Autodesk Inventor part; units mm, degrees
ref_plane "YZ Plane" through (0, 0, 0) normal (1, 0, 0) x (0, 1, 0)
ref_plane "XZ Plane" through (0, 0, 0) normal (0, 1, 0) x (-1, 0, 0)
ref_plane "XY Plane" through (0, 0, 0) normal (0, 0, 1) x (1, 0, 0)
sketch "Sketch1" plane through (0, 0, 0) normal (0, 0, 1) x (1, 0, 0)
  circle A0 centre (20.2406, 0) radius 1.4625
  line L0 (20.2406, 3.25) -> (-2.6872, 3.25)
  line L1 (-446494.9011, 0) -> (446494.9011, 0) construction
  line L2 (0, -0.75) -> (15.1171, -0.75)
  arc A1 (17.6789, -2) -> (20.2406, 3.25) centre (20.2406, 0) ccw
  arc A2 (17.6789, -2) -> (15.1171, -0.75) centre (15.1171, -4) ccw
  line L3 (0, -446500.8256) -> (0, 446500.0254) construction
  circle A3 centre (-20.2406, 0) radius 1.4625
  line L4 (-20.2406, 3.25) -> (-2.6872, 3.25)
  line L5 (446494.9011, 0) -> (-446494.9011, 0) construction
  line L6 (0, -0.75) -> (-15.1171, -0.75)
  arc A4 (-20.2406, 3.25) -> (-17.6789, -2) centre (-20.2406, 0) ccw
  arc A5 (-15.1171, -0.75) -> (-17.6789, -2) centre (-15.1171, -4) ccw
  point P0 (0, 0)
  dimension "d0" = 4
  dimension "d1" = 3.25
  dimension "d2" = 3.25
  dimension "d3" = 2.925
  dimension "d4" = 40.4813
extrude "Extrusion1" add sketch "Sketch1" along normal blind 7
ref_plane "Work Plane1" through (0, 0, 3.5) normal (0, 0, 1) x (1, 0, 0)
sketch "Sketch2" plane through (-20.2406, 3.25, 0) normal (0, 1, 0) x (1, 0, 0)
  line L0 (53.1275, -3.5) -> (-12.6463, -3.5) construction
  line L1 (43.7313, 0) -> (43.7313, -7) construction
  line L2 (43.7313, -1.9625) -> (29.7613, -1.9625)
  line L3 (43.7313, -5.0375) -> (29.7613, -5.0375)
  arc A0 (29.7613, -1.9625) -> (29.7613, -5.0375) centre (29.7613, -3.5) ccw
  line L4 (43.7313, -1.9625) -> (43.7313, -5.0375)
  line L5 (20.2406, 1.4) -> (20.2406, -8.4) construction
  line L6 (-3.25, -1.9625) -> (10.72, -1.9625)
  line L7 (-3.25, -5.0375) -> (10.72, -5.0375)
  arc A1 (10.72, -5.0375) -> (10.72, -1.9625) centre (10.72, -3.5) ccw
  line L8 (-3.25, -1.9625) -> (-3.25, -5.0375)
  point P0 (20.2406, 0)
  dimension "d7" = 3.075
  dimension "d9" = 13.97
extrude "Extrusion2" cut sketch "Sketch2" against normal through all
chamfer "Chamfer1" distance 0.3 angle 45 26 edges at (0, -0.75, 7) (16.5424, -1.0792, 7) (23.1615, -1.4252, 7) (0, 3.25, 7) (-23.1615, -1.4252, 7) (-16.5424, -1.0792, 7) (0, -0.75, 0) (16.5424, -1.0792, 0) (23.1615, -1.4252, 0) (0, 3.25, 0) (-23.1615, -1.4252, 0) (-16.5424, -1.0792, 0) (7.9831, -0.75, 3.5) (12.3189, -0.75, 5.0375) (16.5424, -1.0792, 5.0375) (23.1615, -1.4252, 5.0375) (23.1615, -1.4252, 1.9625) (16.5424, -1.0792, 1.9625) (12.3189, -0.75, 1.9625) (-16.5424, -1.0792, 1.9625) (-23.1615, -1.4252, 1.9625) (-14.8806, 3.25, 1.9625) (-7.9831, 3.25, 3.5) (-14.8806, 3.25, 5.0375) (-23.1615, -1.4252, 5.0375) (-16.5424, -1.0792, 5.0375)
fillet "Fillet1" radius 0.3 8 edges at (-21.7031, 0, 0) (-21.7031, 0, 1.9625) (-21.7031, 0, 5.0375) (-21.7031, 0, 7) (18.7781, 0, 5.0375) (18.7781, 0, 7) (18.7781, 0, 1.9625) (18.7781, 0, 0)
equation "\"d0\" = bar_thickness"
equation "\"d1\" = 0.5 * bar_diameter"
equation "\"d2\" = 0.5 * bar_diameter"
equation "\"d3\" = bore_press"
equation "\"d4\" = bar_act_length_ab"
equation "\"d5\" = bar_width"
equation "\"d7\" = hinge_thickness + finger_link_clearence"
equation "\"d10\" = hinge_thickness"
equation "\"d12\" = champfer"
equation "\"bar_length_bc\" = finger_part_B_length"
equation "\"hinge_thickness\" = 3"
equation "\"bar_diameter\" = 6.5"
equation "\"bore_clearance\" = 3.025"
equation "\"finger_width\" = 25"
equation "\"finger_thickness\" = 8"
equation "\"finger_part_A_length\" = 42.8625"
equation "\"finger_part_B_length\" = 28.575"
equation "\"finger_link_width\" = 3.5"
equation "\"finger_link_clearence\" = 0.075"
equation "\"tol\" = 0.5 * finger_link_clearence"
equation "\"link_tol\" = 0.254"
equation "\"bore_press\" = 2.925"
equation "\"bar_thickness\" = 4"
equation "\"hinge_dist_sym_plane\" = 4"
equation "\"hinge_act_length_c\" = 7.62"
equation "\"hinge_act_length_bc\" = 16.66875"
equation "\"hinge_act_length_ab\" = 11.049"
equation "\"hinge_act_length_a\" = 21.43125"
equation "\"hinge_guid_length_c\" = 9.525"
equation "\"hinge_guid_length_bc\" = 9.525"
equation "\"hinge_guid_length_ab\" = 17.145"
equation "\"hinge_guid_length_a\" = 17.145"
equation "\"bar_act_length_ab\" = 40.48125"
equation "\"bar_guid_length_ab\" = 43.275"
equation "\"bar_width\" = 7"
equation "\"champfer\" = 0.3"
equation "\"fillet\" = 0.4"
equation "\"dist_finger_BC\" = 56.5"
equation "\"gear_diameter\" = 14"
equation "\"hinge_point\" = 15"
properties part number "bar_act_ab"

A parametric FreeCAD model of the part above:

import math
import FreeCAD as App
import Part
import Sketcher
Q = App.Units.Quantity


def edges_at(feature, points):
    """Names of the edges that pass closest to the given points."""
    edges = feature.Shape.Edges
    near = lambda p: min(range(len(edges)), key=lambda i: edges[i].distToShape(Part.Vertex(*p))[0])
    return sorted({f"Edge{near(p) + 1}" for p in points})

doc = App.newDocument("Part")
body = doc.addObject("PartDesign::Body", "Body")

sketch1 = body.newObject("Sketcher::SketchObject", "Sketch")
sketch1.AttachmentSupport = (doc.getObject("XY_Plane"), [""])
sketch1.MapMode = "FlatFace"
sketch1.addGeometry(Part.ArcOfCircle(Part.Circle(App.Vector(20.2406, 0, 0), App.Vector(0, 0, 1), 3.24997), math.radians(-142.019719), math.radians(90)), False)
sketch1.addGeometry(Part.LineSegment(App.Vector(20.2406, 3.25, 0), App.Vector(-20.2406, 3.25, 0)), False)
sketch1.addGeometry(Part.ArcOfCircle(Part.Circle(App.Vector(-20.2406, 0, 0), App.Vector(0, 0, 1), 3.25), math.radians(90), math.radians(322.019719)), False)
sketch1.addGeometry(Part.ArcOfCircle(Part.Circle(App.Vector(-15.1171, -4, 0), App.Vector(0, 0, 1), 3.25), math.radians(90), math.radians(142.020804)), False)
sketch1.addGeometry(Part.LineSegment(App.Vector(-15.1171, -0.75, 0), App.Vector(15.1171, -0.75, 0)), False)
sketch1.addGeometry(Part.ArcOfCircle(Part.Circle(App.Vector(15.1171, -4, 0), App.Vector(0, 0, 1), 3.250049), math.radians(37.979196), math.radians(90)), False)
sketch1.addGeometry(Part.Circle(App.Vector(-20.2406, 0, 0), App.Vector(0, 0, 1), 1.4625), False)
sketch1.addGeometry(Part.Circle(App.Vector(20.2406, 0, 0), App.Vector(0, 0, 1), 1.4625), False)
sketch1.addConstraint(Sketcher.Constraint("Tangent", 0, 2, 1, 1))
sketch1.addConstraint(Sketcher.Constraint("Tangent", 1, 2, 2, 1))
sketch1.addConstraint(Sketcher.Constraint("Tangent", 2, 2, 3, 2))
sketch1.addConstraint(Sketcher.Constraint("Tangent", 3, 1, 4, 1))
sketch1.addConstraint(Sketcher.Constraint("Tangent", 4, 2, 5, 2))
sketch1.addConstraint(Sketcher.Constraint("Tangent", 5, 1, 0, 1))
sketch1.addConstraint(Sketcher.Constraint("Horizontal", 1))
sketch1.addConstraint(Sketcher.Constraint("Horizontal", 4))
sketch1.addConstraint(Sketcher.Constraint("Coincident", 6, 3, 2, 3))
sketch1.addConstraint(Sketcher.Constraint("Coincident", 7, 3, 0, 3))
sketch1.addConstraint(Sketcher.Constraint("Equal", 0, 2))
sketch1.addConstraint(Sketcher.Constraint("Equal", 2, 3))
sketch1.addConstraint(Sketcher.Constraint("Equal", 3, 5))
sketch1.addConstraint(Sketcher.Constraint("Equal", 6, 7))
sketch1.addConstraint(Sketcher.Constraint("Symmetric", 0, 3, 2, 3, -1, 1))
sketch1.addConstraint(Sketcher.Constraint("Diameter", 6, 2.925))
sketch1.addConstraint(Sketcher.Constraint("DistanceX", 1, 2, 1, 1, Q("1.593748 in")))
sketch1.addConstraint(Sketcher.Constraint("Radius", 0, 3.25))
sketch1.addConstraint(Sketcher.Constraint("DistanceY", 3, 3, -1, 1, 4.0))
pad1 = body.newObject("PartDesign::Pad", "Pad")
pad1.Profile = sketch1
pad1.Length = Q("0.2755906 in")

sketch2 = body.newObject("Sketcher::SketchObject", "Sketch001")
sketch2.AttachmentSupport = (doc.getObject("XZ_Plane"), [""])
sketch2.MapMode = "FlatFace"
sketch2.AttachmentOffset = App.Placement(App.Vector(0, 0, -3.25), App.Rotation())
sketch2.addGeometry(Part.LineSegment(App.Vector(23.4907, 5.0375, 0), App.Vector(23.4907, 1.9625, 0)), False)
sketch2.addGeometry(Part.LineSegment(App.Vector(23.4907, 1.9625, 0), App.Vector(9.5207, 1.9625, 0)), False)
sketch2.addGeometry(Part.ArcOfCircle(Part.Circle(App.Vector(9.5207, 3.5, 0), App.Vector(0, 0, 1), 1.5375), math.radians(90), math.radians(270)), False)
sketch2.addGeometry(Part.LineSegment(App.Vector(9.5207, 5.0375, 0), App.Vector(23.4907, 5.0375, 0)), False)
sketch2.addGeometry(Part.LineSegment(App.Vector(-9.5206, 1.9625, 0), App.Vector(-23.4906, 1.9625, 0)), False)
sketch2.addGeometry(Part.LineSegment(App.Vector(-23.4906, 1.9625, 0), App.Vector(-23.4906, 5.0375, 0)), False)
sketch2.addGeometry(Part.LineSegment(App.Vector(-23.4906, 5.0375, 0), App.Vector(-9.5206, 5.0375, 0)), False)
sketch2.addGeometry(Part.ArcOfCircle(Part.Circle(App.Vector(-9.5206, 3.5, 0), App.Vector(0, 0, 1), 1.5375), math.radians(-90), math.radians(90)), False)
sketch2.addConstraint(Sketcher.Constraint("Coincident", 0, 2, 1, 1))
sketch2.addConstraint(Sketcher.Constraint("Tangent", 1, 2, 2, 2))
sketch2.addConstraint(Sketcher.Constraint("Tangent", 2, 1, 3, 1))
sketch2.addConstraint(Sketcher.Constraint("Coincident", 3, 2, 0, 1))
sketch2.addConstraint(Sketcher.Constraint("Coincident", 4, 2, 5, 1))
sketch2.addConstraint(Sketcher.Constraint("Coincident", 5, 2, 6, 1))
sketch2.addConstraint(Sketcher.Constraint("Tangent", 6, 2, 7, 2))
sketch2.addConstraint(Sketcher.Constraint("Tangent", 7, 1, 4, 1))
sketch2.addConstraint(Sketcher.Constraint("Vertical", 0))
sketch2.addConstraint(Sketcher.Constraint("Horizontal", 1))
sketch2.addConstraint(Sketcher.Constraint("Horizontal", 3))
sketch2.addConstraint(Sketcher.Constraint("Horizontal", 4))
sketch2.addConstraint(Sketcher.Constraint("Vertical", 5))
sketch2.addConstraint(Sketcher.Constraint("Horizontal", 6))
sketch2.addConstraint(Sketcher.Constraint("Equal", 2, 7))
sketch2.addConstraint(Sketcher.Constraint("Symmetric", 2, 3, 7, 3, -2))
sketch2.addConstraint(Sketcher.Constraint("Equal", 3, 4))
sketch2.addConstraint(Sketcher.Constraint("DistanceX", 1, 2, 1, 1, Q("0.55 in")))
sketch2.addConstraint(Sketcher.Constraint("Radius", 2, 1.5375))
sketch2.addConstraint(Sketcher.Constraint("DistanceY", -1, 1, 2, 3, Q("0.1378 in")))
sketch2.addConstraint(Sketcher.Constraint("DistanceX", -1, 1, 2, 3, 9.5207))
pocket1 = body.newObject("PartDesign::Pocket", "Pocket")
pocket1.Profile = sketch2
pocket1.Type = "ThroughAll"
pocket1.Reversed = True
doc.recompute()

chamfer = body.newObject("PartDesign::Chamfer", "Chamfer")
chamfer.Base = (pocket1, edges_at(pocket1, [
    (0, -0.75, 7),
    (16.542, -1.079, 7),
    (23.162, -1.425, 7),
    (0, 3.25, 7),
    (-23.162, -1.425, 7),
    (-16.542, -1.079, 7),
    (0, -0.75, 0),
    (16.542, -1.079, 0),
    (23.162, -1.425, 0),
    (0, 3.25, 0),
    (-23.162, -1.425, 0),
    (-16.542, -1.079, 0),
    (7.983, -0.75, 3.5),
    (12.319, -0.75, 5.037),
    (16.542, -1.079, 5.037),
    (23.162, -1.425, 5.037),
    (23.162, -1.425, 1.962),
    (16.542, -1.079, 1.962),
    (12.319, -0.75, 1.962),
    (-16.542, -1.079, 1.962),
    (-23.162, -1.425, 1.962),
    (-14.881, 3.25, 1.962),
    (-7.983, 3.25, 3.5),
    (-14.881, 3.25, 5.037),
    (-23.162, -1.425, 5.037),
    (-16.542, -1.079, 5.037),
]))
chamfer.Size = Q("0.011811 in")
doc.recompute()

fillet = body.newObject("PartDesign::Fillet", "Fillet")
fillet.Base = (chamfer, edges_at(chamfer, [
    (-21.703, 0, 0),
    (-21.703, 0, 1.962),
    (-21.703, 0, 5.037),
    (-21.703, 0, 7),
    (18.778, 0, 5.037),
    (18.778, 0, 7),
    (18.778, 0, 1.962),
    (18.778, 0, 0),
]))
fillet.Radius = Q("0.011811 in")

doc.recompute()
